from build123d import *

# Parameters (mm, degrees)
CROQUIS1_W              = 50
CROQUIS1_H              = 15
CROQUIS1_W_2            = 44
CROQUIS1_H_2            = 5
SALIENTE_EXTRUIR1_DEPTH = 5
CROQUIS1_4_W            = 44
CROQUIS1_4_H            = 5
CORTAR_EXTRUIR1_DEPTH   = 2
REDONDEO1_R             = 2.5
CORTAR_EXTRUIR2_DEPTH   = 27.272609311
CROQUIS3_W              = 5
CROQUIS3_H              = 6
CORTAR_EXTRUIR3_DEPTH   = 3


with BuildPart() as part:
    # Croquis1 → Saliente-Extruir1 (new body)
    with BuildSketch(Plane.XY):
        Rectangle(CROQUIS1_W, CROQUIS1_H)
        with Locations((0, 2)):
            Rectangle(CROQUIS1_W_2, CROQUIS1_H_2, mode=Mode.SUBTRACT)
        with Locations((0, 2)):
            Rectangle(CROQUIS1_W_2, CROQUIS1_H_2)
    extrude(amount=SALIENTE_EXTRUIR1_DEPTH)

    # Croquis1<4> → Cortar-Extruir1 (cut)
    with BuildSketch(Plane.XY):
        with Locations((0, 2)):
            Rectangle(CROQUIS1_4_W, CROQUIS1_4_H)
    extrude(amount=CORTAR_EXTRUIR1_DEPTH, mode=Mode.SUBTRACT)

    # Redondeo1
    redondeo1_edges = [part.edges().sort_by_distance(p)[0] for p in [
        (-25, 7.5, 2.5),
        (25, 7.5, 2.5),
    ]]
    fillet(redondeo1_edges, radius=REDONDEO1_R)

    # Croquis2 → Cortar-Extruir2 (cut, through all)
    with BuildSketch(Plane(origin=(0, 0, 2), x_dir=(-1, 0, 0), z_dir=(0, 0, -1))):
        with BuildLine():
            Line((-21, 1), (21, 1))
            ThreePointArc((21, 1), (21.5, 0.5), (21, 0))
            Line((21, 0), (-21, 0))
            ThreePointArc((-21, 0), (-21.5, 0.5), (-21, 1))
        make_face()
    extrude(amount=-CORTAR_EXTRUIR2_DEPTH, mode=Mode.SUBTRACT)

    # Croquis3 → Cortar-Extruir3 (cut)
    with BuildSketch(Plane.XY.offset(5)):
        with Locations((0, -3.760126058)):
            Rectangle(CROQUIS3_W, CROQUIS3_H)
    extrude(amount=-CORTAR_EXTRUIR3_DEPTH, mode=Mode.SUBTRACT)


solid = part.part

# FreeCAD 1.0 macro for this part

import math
import FreeCAD as App
import Part
import Sketcher
from FreeCAD import Vector


def edges_at(feature, points):
    """Names of the edges that pass closest to the given points."""
    edges = feature.Shape.Edges
    near = lambda p: min(range(len(edges)), key=lambda i: edges[i].distToShape(Part.Vertex(*p))[0])
    return sorted({f"Edge{near(p) + 1}" for p in points})

doc = App.newDocument("Part")
body = doc.addObject("PartDesign::Body", "Body")

# Sketch on XY plane
sketch1 = body.newObject("Sketcher::SketchObject", "Sketch")
sketch1.AttachmentSupport = (doc.getObject("XY_Plane"), [""])
sketch1.MapMode = "FlatFace"
sketch1.addGeometry([
    Part.LineSegment(Vector(-25, 8, 0), Vector(-25, -8, 0)),
    Part.LineSegment(Vector(-25, -8, 0), Vector(25, -8, 0)),
    Part.LineSegment(Vector(25, -8, 0), Vector(25, 8, 0)),
    Part.LineSegment(Vector(25, 8, 0), Vector(-25, 8, 0)),
], False)
sketch1.addConstraint([
    Sketcher.Constraint("Coincident", 0, 2, 1, 1),
    Sketcher.Constraint("Coincident", 1, 2, 2, 1),
    Sketcher.Constraint("Coincident", 2, 2, 3, 1),
    Sketcher.Constraint("Coincident", 3, 2, 0, 1),
    Sketcher.Constraint("Vertical", 0),
    Sketcher.Constraint("Horizontal", 1),
    Sketcher.Constraint("Vertical", 2),
    Sketcher.Constraint("Horizontal", 3),
    Sketcher.Constraint("Symmetric", 0, 2, 2, 2, -1, 1),
    Sketcher.Constraint("DistanceX", 1, 1, 1, 2, 50.0),
    Sketcher.Constraint("DistanceY", 0, 2, 0, 1, 15.0),
])
pad1 = body.newObject("PartDesign::Pad", "Pad")
pad1.Profile = sketch1
pad1.Length = 5

# Sketch on XY plane
sketch2 = body.newObject("Sketcher::SketchObject", "Sketch001")
sketch2.AttachmentSupport = (doc.getObject("XY_Plane"), [""])
sketch2.MapMode = "FlatFace"
sketch2.addGeometry([
    Part.LineSegment(Vector(-22, 4, 0), Vector(-22, 0, 0)),
    Part.LineSegment(Vector(-22, 0, 0), Vector(22, 0, 0)),
    Part.LineSegment(Vector(22, 0, 0), Vector(22, 4, 0)),
    Part.LineSegment(Vector(22, 4, 0), Vector(-22, 4, 0)),
], False)
sketch2.addConstraint([
    Sketcher.Constraint("Coincident", 0, 2, 1, 1),
    Sketcher.Constraint("Coincident", 1, 2, 2, 1),
    Sketcher.Constraint("Coincident", 2, 2, 3, 1),
    Sketcher.Constraint("Coincident", 3, 2, 0, 1),
    Sketcher.Constraint("Vertical", 0),
    Sketcher.Constraint("Horizontal", 1),
    Sketcher.Constraint("Vertical", 2),
    Sketcher.Constraint("Horizontal", 3),
    Sketcher.Constraint("DistanceX", 1, 1, 1, 2, 44.0),
    Sketcher.Constraint("DistanceY", 0, 2, 0, 1, 5.0),
    Sketcher.Constraint("DistanceX", 0, 2, -1, 1, 22.0),
    Sketcher.Constraint("DistanceY", 0, 2, -1, 1, 0.5),
])
pocket1 = body.newObject("PartDesign::Pocket", "Pocket")
pocket1.Profile = sketch2
pocket1.Length = 2
pocket1.Reversed = True
doc.recompute()

fillet = body.newObject("PartDesign::Fillet", "Fillet")
fillet.Base = (pocket1, edges_at(pocket1, [(-25, 7.5, 2.5), (25, 7.5, 2.5)]))
fillet.Radius = 2.5

# Sketch on XY plane
sketch3 = body.newObject("Sketcher::SketchObject", "Sketch002")
sketch3.AttachmentSupport = (doc.getObject("XY_Plane"), [""])
sketch3.MapMode = "FlatFace"
sketch3.AttachmentOffset = App.Placement(Vector(0, 0, 2), App.Rotation())
sketch3.addGeometry([
    Part.LineSegment(Vector(-21, 1, 0), Vector(21, 1, 0)),
    Part.ArcOfCircle(Part.Circle(Vector(21, 0.5, 0), Vector(0, 0, 1), 0.5), math.radians(-90), math.radians(90)),
    Part.LineSegment(Vector(21, 0, 0), Vector(-21, 0, 0)),
    Part.ArcOfCircle(Part.Circle(Vector(-21, 0.5, 0), Vector(0, 0, 1), 0.5), math.radians(90), math.radians(270)),
], False)
sketch3.addConstraint([
    Sketcher.Constraint("Tangent", 0, 2, 1, 2),
    Sketcher.Constraint("Tangent", 1, 1, 2, 1),
    Sketcher.Constraint("Tangent", 2, 2, 3, 2),
    Sketcher.Constraint("Tangent", 3, 1, 0, 1),
    Sketcher.Constraint("Horizontal", 0),
    Sketcher.Constraint("Horizontal", 2),
    Sketcher.Constraint("Symmetric", 1, 1, 2, 2, -1, 1),
    Sketcher.Constraint("Radius", 1, 0.5),
    Sketcher.Constraint("DistanceX", 0, 1, 0, 2, 42.0),
])
pocket2 = body.newObject("PartDesign::Pocket", "Pocket001")
pocket2.Profile = sketch3
pocket2.Type = "ThroughAll"
pocket2.Reversed = True

# Sketch on XY plane
sketch4 = body.newObject("Sketcher::SketchObject", "Sketch003")
sketch4.AttachmentSupport = (doc.getObject("XY_Plane"), [""])
sketch4.MapMode = "FlatFace"
sketch4.AttachmentOffset = App.Placement(Vector(0, 0, 5), App.Rotation())
sketch4.addGeometry([
    Part.LineSegment(Vector(-2, -1, 0), Vector(-2, -7, 0)),
    Part.LineSegment(Vector(-2, -7, 0), Vector(2, -7, 0)),
    Part.LineSegment(Vector(2, -7, 0), Vector(2, -1, 0)),
    Part.LineSegment(Vector(2, -1, 0), Vector(-2, -1, 0)),
], False)
sketch4.addConstraint([
    Sketcher.Constraint("Coincident", 0, 2, 1, 1),
    Sketcher.Constraint("Coincident", 1, 2, 2, 1),
    Sketcher.Constraint("Coincident", 2, 2, 3, 1),
    Sketcher.Constraint("Coincident", 3, 2, 0, 1),
    Sketcher.Constraint("Vertical", 0),
    Sketcher.Constraint("Horizontal", 1),
    Sketcher.Constraint("Vertical", 2),
    Sketcher.Constraint("Horizontal", 3),
    Sketcher.Constraint("DistanceX", 1, 1, 1, 2, 5.0),
    Sketcher.Constraint("DistanceY", 0, 2, 0, 1, 6.0),
    Sketcher.Constraint("DistanceX", 0, 2, -1, 1, 2.5),
    Sketcher.Constraint("DistanceY", 0, 2, -1, 1, 6.760126),
])
pocket3 = body.newObject("PartDesign::Pocket", "Pocket002")
pocket3.Profile = sketch4
pocket3.Length = 3

doc.recompute()
